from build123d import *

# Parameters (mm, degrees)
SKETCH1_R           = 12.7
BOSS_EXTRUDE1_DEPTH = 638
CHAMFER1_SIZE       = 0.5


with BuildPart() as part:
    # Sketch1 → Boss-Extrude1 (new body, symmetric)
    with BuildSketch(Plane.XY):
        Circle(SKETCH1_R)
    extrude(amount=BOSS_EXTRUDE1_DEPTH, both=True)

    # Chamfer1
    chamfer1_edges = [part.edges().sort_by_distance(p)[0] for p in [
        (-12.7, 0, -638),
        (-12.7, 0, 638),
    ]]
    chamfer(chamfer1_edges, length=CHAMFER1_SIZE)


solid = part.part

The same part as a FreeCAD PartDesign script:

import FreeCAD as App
import Part
import Sketcher

V = App.Vector
Q = App.Units.Quantity


def edges_at(feature, points):
    """Names of the edges that pass closest to the given points."""
    edges = feature.Shape.Edges
    near = lambda p: min(range(len(edges)), key=lambda i: edges[i].distToShape(Part.Vertex(*p))[0])
    return sorted({f"Edge{near(p) + 1}" for p in points})

doc = App.newDocument("Part")
body = doc.addObject("PartDesign::Body", "Body")

# Sketch on XY plane
sketch1 = doc.addObject("Sketcher::SketchObject", "Sketch")
body.addObject(sketch1)
sketch1.AttachmentSupport = (doc.XY_Plane, [""])
sketch1.MapMode = "FlatFace"
sketch1.addGeometry(Part.Circle(V(0, 0, 0), V(0, 0, 1), 13), False)
sketch1.addConstraint(Sketcher.Constraint("Coincident", 0, 3, -1, 1))
sketch1.addConstraint(Sketcher.Constraint("Diameter", 0, Q("25.4 mm")))
pad1 = doc.addObject("PartDesign::Pad", "Pad")
body.addObject(pad1)
pad1.Profile = sketch1
pad1.Length = 1276
pad1.Midplane = True
doc.recompute()

chamfer = doc.addObject("PartDesign::Chamfer", "Chamfer")
body.addObject(chamfer)
chamfer.Base = (pad1, edges_at(pad1, [(-12.7, 0, -638), (-12.7, 0, 638)]))
chamfer.Size = 0.5

doc.recompute()
